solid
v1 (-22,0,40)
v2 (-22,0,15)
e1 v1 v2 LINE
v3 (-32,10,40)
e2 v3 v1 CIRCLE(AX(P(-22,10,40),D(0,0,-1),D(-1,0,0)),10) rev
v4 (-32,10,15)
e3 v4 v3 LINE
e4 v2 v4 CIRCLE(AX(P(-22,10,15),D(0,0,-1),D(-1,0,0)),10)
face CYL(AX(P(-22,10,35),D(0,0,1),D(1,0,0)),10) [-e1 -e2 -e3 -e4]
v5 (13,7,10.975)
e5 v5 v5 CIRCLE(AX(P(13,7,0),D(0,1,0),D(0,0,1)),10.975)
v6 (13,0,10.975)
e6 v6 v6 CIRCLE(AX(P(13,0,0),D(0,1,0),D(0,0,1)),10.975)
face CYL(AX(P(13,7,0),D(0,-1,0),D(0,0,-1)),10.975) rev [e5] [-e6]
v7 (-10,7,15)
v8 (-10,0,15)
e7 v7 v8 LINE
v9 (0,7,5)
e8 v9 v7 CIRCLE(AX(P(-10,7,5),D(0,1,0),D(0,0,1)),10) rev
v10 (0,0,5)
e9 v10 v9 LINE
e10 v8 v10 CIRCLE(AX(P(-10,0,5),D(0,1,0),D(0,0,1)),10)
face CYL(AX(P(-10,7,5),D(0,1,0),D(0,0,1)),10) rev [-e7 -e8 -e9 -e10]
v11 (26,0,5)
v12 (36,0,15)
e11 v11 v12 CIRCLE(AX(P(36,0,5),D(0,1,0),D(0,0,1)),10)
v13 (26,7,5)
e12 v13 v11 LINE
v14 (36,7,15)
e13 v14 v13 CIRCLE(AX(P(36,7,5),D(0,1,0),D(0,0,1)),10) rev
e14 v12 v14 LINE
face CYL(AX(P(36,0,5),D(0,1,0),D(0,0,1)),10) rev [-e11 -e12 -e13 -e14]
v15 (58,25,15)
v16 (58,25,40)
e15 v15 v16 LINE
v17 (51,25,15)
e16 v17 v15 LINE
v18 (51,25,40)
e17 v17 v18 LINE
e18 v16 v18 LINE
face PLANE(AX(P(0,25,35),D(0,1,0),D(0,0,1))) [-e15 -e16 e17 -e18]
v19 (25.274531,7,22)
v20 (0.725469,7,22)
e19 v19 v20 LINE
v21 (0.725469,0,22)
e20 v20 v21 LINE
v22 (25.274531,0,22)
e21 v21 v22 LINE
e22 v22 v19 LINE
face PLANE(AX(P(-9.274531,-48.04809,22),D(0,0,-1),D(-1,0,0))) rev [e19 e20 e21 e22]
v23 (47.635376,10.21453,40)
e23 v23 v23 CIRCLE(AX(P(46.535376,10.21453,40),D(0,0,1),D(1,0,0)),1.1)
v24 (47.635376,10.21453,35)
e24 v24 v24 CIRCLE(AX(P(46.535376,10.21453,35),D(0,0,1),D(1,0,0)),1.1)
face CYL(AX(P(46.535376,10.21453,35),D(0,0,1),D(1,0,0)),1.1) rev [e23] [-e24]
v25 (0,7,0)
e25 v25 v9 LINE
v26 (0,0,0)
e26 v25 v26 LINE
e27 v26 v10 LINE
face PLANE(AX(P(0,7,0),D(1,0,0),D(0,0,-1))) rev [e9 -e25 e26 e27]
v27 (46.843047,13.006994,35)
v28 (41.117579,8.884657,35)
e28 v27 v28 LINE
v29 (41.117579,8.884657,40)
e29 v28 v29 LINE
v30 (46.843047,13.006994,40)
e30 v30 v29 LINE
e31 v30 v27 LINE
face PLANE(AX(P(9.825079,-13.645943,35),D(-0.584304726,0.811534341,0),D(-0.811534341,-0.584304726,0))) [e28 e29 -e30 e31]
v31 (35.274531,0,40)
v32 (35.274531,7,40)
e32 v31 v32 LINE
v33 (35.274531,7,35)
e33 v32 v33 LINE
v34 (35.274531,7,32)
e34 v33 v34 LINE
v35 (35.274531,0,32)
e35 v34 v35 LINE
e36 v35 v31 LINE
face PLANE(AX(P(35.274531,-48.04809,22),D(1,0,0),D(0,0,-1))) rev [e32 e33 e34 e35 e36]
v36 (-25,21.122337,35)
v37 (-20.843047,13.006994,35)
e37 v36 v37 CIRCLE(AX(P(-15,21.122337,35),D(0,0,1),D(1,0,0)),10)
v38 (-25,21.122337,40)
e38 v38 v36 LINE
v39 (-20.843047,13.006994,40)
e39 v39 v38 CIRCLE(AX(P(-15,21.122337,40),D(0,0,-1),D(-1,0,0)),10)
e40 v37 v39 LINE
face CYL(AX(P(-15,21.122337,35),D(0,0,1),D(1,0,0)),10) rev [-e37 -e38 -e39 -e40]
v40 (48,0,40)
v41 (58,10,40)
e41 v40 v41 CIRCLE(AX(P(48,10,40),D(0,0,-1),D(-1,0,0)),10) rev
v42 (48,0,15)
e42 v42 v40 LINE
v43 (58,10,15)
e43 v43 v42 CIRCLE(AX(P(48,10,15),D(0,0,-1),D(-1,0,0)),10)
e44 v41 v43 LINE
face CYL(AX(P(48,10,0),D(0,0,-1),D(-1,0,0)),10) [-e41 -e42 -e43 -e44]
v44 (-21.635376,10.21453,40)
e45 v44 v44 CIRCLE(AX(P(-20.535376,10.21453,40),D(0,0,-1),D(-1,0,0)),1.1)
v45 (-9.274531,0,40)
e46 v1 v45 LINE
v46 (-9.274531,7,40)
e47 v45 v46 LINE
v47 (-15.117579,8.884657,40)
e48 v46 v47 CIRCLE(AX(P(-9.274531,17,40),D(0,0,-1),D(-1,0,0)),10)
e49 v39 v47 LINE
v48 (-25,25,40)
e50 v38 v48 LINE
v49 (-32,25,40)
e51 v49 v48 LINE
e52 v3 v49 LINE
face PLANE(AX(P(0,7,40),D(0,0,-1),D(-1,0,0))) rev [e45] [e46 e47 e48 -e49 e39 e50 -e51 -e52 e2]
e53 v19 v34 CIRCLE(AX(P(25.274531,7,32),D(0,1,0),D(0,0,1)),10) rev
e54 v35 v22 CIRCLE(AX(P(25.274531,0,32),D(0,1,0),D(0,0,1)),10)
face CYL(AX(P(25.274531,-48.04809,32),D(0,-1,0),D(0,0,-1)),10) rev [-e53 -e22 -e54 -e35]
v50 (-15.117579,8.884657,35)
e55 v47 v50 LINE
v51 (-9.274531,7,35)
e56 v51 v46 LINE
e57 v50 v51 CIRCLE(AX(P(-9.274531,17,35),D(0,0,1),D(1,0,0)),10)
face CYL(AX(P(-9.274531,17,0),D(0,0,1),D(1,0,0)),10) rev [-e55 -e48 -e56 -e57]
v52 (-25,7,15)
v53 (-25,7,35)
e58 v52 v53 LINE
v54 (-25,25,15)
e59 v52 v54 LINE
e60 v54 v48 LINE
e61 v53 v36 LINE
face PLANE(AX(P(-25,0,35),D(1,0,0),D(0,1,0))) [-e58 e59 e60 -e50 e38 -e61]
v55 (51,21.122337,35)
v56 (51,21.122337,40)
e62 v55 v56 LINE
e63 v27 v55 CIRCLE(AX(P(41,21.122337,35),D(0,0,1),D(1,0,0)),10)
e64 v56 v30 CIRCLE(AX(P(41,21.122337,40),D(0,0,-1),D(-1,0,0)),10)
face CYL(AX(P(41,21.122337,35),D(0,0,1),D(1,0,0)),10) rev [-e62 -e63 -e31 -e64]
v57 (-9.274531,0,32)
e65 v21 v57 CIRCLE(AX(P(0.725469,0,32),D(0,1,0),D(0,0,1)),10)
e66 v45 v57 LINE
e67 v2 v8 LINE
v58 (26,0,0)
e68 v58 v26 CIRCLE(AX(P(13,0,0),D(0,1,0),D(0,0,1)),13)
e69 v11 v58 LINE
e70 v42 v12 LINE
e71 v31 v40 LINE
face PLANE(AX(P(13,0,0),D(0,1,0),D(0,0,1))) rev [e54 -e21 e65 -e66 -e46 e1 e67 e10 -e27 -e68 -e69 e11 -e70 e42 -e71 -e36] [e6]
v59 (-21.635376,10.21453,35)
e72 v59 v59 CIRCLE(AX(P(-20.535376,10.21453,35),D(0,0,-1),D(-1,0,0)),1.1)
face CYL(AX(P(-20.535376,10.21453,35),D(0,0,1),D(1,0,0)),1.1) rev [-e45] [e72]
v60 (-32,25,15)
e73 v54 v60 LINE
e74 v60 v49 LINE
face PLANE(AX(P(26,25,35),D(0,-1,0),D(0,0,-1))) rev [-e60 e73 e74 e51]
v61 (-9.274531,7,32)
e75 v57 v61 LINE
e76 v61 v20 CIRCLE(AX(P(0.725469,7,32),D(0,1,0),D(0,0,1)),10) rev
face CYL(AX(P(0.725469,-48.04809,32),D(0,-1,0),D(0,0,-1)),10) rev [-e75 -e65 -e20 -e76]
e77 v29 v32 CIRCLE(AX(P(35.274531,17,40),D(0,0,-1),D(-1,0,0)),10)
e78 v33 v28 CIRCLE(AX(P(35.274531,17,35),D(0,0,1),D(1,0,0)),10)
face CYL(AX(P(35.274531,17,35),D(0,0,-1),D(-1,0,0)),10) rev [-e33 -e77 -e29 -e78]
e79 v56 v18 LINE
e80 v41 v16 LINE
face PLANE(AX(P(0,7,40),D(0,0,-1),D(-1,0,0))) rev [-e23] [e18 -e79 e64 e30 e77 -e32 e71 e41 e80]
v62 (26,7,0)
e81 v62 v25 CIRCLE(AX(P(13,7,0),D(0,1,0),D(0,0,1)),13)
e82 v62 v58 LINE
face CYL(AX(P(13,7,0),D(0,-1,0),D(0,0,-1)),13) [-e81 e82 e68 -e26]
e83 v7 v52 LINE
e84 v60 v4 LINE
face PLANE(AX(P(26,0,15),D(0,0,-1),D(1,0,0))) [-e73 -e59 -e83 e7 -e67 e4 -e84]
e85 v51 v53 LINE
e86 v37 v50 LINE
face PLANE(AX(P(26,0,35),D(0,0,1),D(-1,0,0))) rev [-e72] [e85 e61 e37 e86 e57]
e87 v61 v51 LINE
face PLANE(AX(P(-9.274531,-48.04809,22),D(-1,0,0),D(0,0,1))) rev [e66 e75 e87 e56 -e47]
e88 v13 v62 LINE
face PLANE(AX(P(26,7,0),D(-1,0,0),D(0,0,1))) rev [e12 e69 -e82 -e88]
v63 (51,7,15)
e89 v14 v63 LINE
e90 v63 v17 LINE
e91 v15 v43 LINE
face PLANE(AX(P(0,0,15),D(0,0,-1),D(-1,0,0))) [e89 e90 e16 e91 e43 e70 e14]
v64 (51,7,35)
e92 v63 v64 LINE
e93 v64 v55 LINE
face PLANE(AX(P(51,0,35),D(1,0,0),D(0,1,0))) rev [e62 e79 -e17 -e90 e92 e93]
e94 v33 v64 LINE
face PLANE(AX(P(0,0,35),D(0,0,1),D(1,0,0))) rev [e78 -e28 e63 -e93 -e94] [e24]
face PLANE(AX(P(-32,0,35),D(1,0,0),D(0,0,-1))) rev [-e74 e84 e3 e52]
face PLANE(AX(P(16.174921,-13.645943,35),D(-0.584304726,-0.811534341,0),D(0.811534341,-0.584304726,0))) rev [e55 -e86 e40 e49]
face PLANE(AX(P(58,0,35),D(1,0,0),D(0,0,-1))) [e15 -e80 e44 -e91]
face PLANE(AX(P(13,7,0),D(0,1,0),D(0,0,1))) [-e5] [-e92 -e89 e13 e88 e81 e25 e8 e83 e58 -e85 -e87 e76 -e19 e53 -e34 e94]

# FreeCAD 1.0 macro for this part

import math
import FreeCAD as App
import Part
import Sketcher

V = App.Vector
Q = App.Units.Quantity


def edges_at(feature, points):
    """Names of the edges that pass closest to the given points."""
    edges = feature.Shape.Edges
    near = lambda p: min(range(len(edges)), key=lambda i: edges[i].distToShape(Part.Vertex(*p))[0])
    return sorted({f"Edge{near(p) + 1}" for p in points})

doc = App.newDocument("Part")
params = doc.addObject("Spreadsheet::Sheet", "Params")
for row, (alias, value) in enumerate([
    ("sketch1_radius", "13 mm"),
    ("sketch1_diameter", "21.95 mm"),
    ("sketch1_height", "40 mm"),
    ("pad1_length", "7 mm"),
    ("sketch2_diameter", "2.2 mm"),
    ("sketch2_width", "32 mm"),
    ("sketch2_width2", "7 mm"),
    ("sketch2_height", "9 mm"),
    ("sketch2_height2", "25 mm"),
    ("pad2_length", "5 mm"),
    ("sketch3_width", "7 mm"),
    ("sketch3_width2", "32 mm"),
    ("pad3_length", "20 mm"),
    ("fillet_radius", "10 mm"),
    ("sketch4_height", "18 mm"),
    ("pocket1_length", "7 mm"),
    ("fillet2_radius", "10 mm"),
], start=1):
    params.set(f"A{row}", alias)
    params.set(f"B{row}", "=" + value)
    params.setAlias(f"B{row}", alias)

body = doc.addObject("PartDesign::Body", "Body")

sketch1 = doc.addObject("Sketcher::SketchObject", "Sketch")
body.addObject(sketch1)
sketch1.AttachmentSupport = (doc.XZ_Plane, [""])
sketch1.MapMode = "FlatFace"
sketch1.addGeometry([
    Part.LineSegment(V(0, 0, 0), V(0, 40, 0)),
    Part.LineSegment(V(0, 40, 0), V(26, 40, 0)),
    Part.LineSegment(V(26, 40, 0), V(26, 0, 0)),
    Part.ArcOfCircle(Part.Circle(V(13, 0, 0), V(0, 0, 1), 13), math.radians(180), math.radians(360)),
    Part.Circle(V(13, 0, 0), V(0, 0, 1), 11),
], False)
sketch1.addConstraint([
    Sketcher.Constraint("Coincident", 0, 2, 1, 1),
    Sketcher.Constraint("Coincident", 1, 2, 2, 1),
    Sketcher.Constraint("Tangent", 2, 2, 3, 2),
    Sketcher.Constraint("Tangent", 3, 1, 0, 1),
    Sketcher.Constraint("Vertical", 0),
    Sketcher.Constraint("Horizontal", 1),
    Sketcher.Constraint("Vertical", 2),
    Sketcher.Constraint("Coincident", 3, 1, -1, 1),
    Sketcher.Constraint("Coincident", 4, 3, 3, 3),
    Sketcher.Constraint("Radius", 3, Q("13 mm")),
    Sketcher.Constraint("Diameter", 4, Q("21.95 mm")),
    Sketcher.Constraint("DistanceY", 0, 1, 0, 2, Q("40 mm")),
])
sketch1.setExpression("Constraints[9]", "Params.sketch1_radius")
sketch1.setExpression("Constraints[10]", "Params.sketch1_diameter")
sketch1.setExpression("Constraints[11]", "Params.sketch1_height")
pad1 = doc.addObject("PartDesign::Pad", "Pad")
body.addObject(pad1)
pad1.Profile = sketch1
pad1.setExpression("Length", "Params.pad1_length")
pad1.Reversed = True

sketch2 = doc.addObject("Sketcher::SketchObject", "Sketch001")
body.addObject(sketch2)
sketch2.AttachmentSupport = (doc.XY_Plane, [""])
sketch2.MapMode = "FlatFace"
sketch2.AttachmentOffset = App.Placement(V(0, 0, 40), App.Rotation())
sketch2.addGeometry([
    Part.LineSegment(V(51, 25, 0), V(51, 16, 0)),
    Part.LineSegment(V(51, 16, 0), V(38.5, 7, 0)),
    Part.LineSegment(V(38.5, 7, 0), V(26, 7, 0)),
    Part.LineSegment(V(26, 7, 0), V(26, 0, 0)),
    Part.LineSegment(V(26, 0, 0), V(58, 0, 0)),
    Part.LineSegment(V(58, 0, 0), V(58, 25, 0)),
    Part.LineSegment(V(58, 25, 0), V(51, 25, 0)),
    Part.Circle(V(46.5, 10.2, 0), V(0, 0, 1), 1.1),
], False)
sketch2.addConstraint([
    Sketcher.Constraint("Coincident", 0, 2, 1, 1),
    Sketcher.Constraint("Coincident", 1, 2, 2, 1),
    Sketcher.Constraint("Coincident", 2, 2, 3, 1),
    Sketcher.Constraint("Coincident", 3, 2, 4, 1),
    Sketcher.Constraint("Coincident", 4, 2, 5, 1),
    Sketcher.Constraint("Coincident", 5, 2, 6, 1),
    Sketcher.Constraint("Coincident", 6, 2, 0, 1),
    Sketcher.Constraint("Vertical", 0),
    Sketcher.Constraint("Horizontal", 2),
    Sketcher.Constraint("Vertical", 3),
    Sketcher.Constraint("Horizontal", 4),
    Sketcher.Constraint("Vertical", 5),
    Sketcher.Constraint("Horizontal", 6),
    Sketcher.Constraint("PointOnObject", 3, 2, -1),
    Sketcher.Constraint("Equal", 6, 3),
    Sketcher.Constraint("Diameter", 7, Q("2.2 mm")),
    Sketcher.Constraint("DistanceX", 4, 1, 4, 2, Q("32 mm")),
    Sketcher.Constraint("DistanceX", 6, 2, 6, 1, Q("7 mm")),
    Sketcher.Constraint("DistanceY", 0, 2, 0, 1, Q("9 mm")),
    Sketcher.Constraint("DistanceY", 5, 1, 5, 2, Q("25 mm")),
    Sketcher.Constraint("DistanceX", 2, 2, 2, 1, Q("12.5 mm")),
    Sketcher.Constraint("DistanceX", -1, 1, 0, 2, Q("51 mm")),
    Sketcher.Constraint("DistanceY", -1, 1, 7, 3, Q("10.21453 mm")),
    Sketcher.Constraint("DistanceX", -1, 1, 7, 3, Q("46.535376 mm")),
])
sketch2.setExpression("Constraints[15]", "Params.sketch2_diameter")
sketch2.setExpression("Constraints[16]", "Params.sketch2_width")
sketch2.setExpression("Constraints[17]", "Params.sketch2_width2")
sketch2.setExpression("Constraints[18]", "Params.sketch2_height")
sketch2.setExpression("Constraints[19]", "Params.sketch2_height2")
pad2 = doc.addObject("PartDesign::Pad", "Pad001")
body.addObject(pad2)
pad2.Profile = sketch2
pad2.setExpression("Length", "Params.pad2_length")
pad2.Reversed = True

sketch3 = doc.addObject("Sketcher::SketchObject", "Sketch002")
body.addObject(sketch3)
sketch3.AttachmentSupport = (doc.XY_Plane, [""])
sketch3.MapMode = "FlatFace"
sketch3.AttachmentOffset = App.Placement(V(0, 0, 35), App.Rotation())
sketch3.addGeometry([
    Part.LineSegment(V(51, 7, 0), V(51, 25, 0)),
    Part.LineSegment(V(51, 25, 0), V(58, 25, 0)),
    Part.LineSegment(V(58, 25, 0), V(58, 0, 0)),
    Part.LineSegment(V(58, 0, 0), V(26, 0, 0)),
    Part.LineSegment(V(26, 0, 0), V(26, 7, 0)),
    Part.LineSegment(V(26, 7, 0), V(51, 7, 0)),
], False)
sketch3.addConstraint([
    Sketcher.Constraint("Coincident", 0, 2, 1, 1),
    Sketcher.Constraint("Coincident", 1, 2, 2, 1),
    Sketcher.Constraint("Coincident", 2, 2, 3, 1),
    Sketcher.Constraint("Coincident", 3, 2, 4, 1),
    Sketcher.Constraint("Coincident", 4, 2, 5, 1),
    Sketcher.Constraint("Coincident", 5, 2, 0, 1),
    Sketcher.Constraint("Vertical", 0),
    Sketcher.Constraint("Horizontal", 1),
    Sketcher.Constraint("Vertical", 2),
    Sketcher.Constraint("Horizontal", 3),
    Sketcher.Constraint("Vertical", 4),
    Sketcher.Constraint("Horizontal", 5),
    Sketcher.Constraint("PointOnObject", 2, 2, -1),
    Sketcher.Constraint("Equal", 5, 2),
    Sketcher.Constraint("Equal", 1, 4),
    Sketcher.Constraint("DistanceX", 1, 1, 1, 2, Q("7 mm")),
    Sketcher.Constraint("DistanceX", 3, 2, 3, 1, Q("32 mm")),
    Sketcher.Constraint("DistanceX", -1, 1, 0, 2, Q("51 mm")),
])
sketch3.setExpression("Constraints[15]", "Params.sketch3_width")
sketch3.setExpression("Constraints[16]", "Params.sketch3_width2")
pad3 = doc.addObject("PartDesign::Pad", "Pad002")
body.addObject(pad3)
pad3.Profile = sketch3
pad3.setExpression("Length", "Params.pad3_length")
pad3.Reversed = True
doc.recompute()

datumplane = doc.addObject("PartDesign::Plane", "DatumPlane")
body.addObject(datumplane)
datumplane.AttachmentSupport = (doc.YZ_Plane, [""])
datumplane.MapMode = "FlatFace"
datumplane.AttachmentOffset = App.Placement(V(0, 0, 13), App.Rotation())
mirrored = doc.addObject("PartDesign::Mirrored", "Mirrored")
body.addObject(mirrored)
mirrored.Originals = [pad2, pad3]
mirrored.MirrorPlane = (datumplane, [""])
body.Tip = mirrored
doc.recompute()

fillet = doc.addObject("PartDesign::Fillet", "Fillet")
body.addObject(fillet)
fillet.Base = (mirrored, edges_at(mirrored, [
    (51, 16, 37.5),
    (58, 0, 27.5),
    (38.5, 7, 37.5),
    (26, 3.5, 15),
    (-25, 16, 37.5),
    (-12.5, 7, 37.5),
    (-32, 0, 27.5),
    (0, 3.5, 15),
]))
fillet.setExpression("Radius", "Params.fillet_radius")

sketch4 = doc.addObject("Sketcher::SketchObject", "Sketch003")
body.addObject(sketch4)
sketch4.AttachmentSupport = (doc.XZ_Plane, [""])
sketch4.MapMode = "FlatFace"
sketch4.AttachmentOffset = App.Placement(V(0, 0, -7), App.Rotation())
sketch4.addGeometry([
    Part.LineSegment(V(-9, 22, 0), V(-9, 40, 0)),
    Part.LineSegment(V(-9, 40, 0), V(35, 40, 0)),
    Part.LineSegment(V(35, 40, 0), V(35, 22, 0)),
    Part.LineSegment(V(35, 22, 0), V(-9, 22, 0)),
], False)
sketch4.addConstraint([
    Sketcher.Constraint("Coincident", 0, 2, 1, 1),
    Sketcher.Constraint("Coincident", 1, 2, 2, 1),
    Sketcher.Constraint("Coincident", 2, 2, 3, 1),
    Sketcher.Constraint("Coincident", 3, 2, 0, 1),
    Sketcher.Constraint("Vertical", 0),
    Sketcher.Constraint("Horizontal", 1),
    Sketcher.Constraint("Vertical", 2),
    Sketcher.Constraint("Horizontal", 3),
    Sketcher.Constraint("DistanceY", 0, 1, 0, 2, Q("18 mm")),
    Sketcher.Constraint("DistanceY", -1, 1, 0, 2, Q("40 mm")),
    Sketcher.Constraint("DistanceX", 1, 1, 1, 2, Q("44.549063 mm")),
    Sketcher.Constraint("DistanceX", 0, 2, -1, 1, Q("9.274531 mm")),
])
sketch4.setExpression("Constraints[8]", "Params.sketch4_height")
pocket1 = doc.addObject("PartDesign::Pocket", "Pocket")
body.addObject(pocket1)
pocket1.Profile = sketch4
pocket1.setExpression("Length", "Params.pocket1_length")
pocket1.Reversed = True
doc.recompute()

fillet2 = doc.addObject("PartDesign::Fillet", "Fillet001")
body.addObject(fillet2)
fillet2.Base = (pocket1, edges_at(pocket1, [(-9.275, 3.5, 22), (35.275, 3.5, 22)]))
fillet2.setExpression("Radius", "Params.fillet2_radius")

doc.recompute()
